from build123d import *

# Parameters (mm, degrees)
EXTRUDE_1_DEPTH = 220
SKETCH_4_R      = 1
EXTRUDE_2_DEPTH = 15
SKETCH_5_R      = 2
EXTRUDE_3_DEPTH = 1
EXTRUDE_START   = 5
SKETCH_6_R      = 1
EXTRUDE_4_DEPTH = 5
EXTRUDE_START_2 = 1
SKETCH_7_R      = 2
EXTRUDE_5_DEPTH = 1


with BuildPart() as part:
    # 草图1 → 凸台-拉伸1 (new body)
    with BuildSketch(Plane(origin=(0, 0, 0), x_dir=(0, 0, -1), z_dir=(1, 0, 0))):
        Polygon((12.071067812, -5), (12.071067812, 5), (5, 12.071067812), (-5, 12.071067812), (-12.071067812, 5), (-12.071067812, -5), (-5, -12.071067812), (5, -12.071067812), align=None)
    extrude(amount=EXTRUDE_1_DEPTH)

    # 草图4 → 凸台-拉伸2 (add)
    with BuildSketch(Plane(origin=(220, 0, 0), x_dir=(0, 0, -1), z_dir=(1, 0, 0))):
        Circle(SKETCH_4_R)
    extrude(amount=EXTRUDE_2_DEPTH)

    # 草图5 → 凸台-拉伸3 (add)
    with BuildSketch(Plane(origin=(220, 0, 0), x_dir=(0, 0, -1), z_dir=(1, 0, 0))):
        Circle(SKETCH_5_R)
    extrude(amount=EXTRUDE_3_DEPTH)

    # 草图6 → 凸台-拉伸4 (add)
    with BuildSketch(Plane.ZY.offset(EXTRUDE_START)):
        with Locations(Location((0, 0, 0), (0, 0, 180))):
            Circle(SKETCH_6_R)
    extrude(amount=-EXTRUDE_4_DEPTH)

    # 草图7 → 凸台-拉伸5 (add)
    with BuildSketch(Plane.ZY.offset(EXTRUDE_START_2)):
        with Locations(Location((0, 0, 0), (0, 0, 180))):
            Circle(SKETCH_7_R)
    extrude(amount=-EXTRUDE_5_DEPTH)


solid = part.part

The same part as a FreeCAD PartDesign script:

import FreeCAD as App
import Part
import Sketcher

V = App.Vector
Q = App.Units.Quantity

doc = App.newDocument("Part")
body = doc.addObject("PartDesign::Body", "Body")

# Sketch on YZ plane
sketch1 = doc.addObject("Sketcher::SketchObject", "Sketch")
body.addObject(sketch1)
sketch1.AttachmentSupport = (doc.YZ_Plane, [""])
sketch1.MapMode = "FlatFace"
sketch1.addGeometry([
    Part.LineSegment(V(-5, -12, 0), V(5, -12, 0)),  # 0
    Part.LineSegment(V(5, -12, 0), V(12, -5, 0)),  # 1
    Part.LineSegment(V(12, -5, 0), V(12, 5, 0)),  # 2
    Part.LineSegment(V(12, 5, 0), V(5, 12, 0)),  # 3
    Part.LineSegment(V(5, 12, 0), V(-5, 12, 0)),  # 4
    Part.LineSegment(V(-5, 12, 0), V(-12, 5, 0)),  # 5
    Part.LineSegment(V(-12, 5, 0), V(-12, -5, 0)),  # 6
    Part.LineSegment(V(-12, -5, 0), V(-5, -12, 0)),  # 7
], False)
sketch1.addConstraint([
    Sketcher.Constraint("Coincident", 0, 2, 1, 1),
    Sketcher.Constraint("Coincident", 1, 2, 2, 1),
    Sketcher.Constraint("Coincident", 2, 2, 3, 1),
    Sketcher.Constraint("Coincident", 3, 2, 4, 1),
    Sketcher.Constraint("Coincident", 4, 2, 5, 1),
    Sketcher.Constraint("Coincident", 5, 2, 6, 1),
    Sketcher.Constraint("Coincident", 6, 2, 7, 1),
    Sketcher.Constraint("Coincident", 7, 2, 0, 1),
    Sketcher.Constraint("Horizontal", 0),
    Sketcher.Constraint("Vertical", 2),
    Sketcher.Constraint("Horizontal", 4),
    Sketcher.Constraint("Vertical", 6),
    Sketcher.Constraint("Symmetric", 0, 2, 4, 2, -1, 1),
    Sketcher.Constraint("Symmetric", 1, 2, 5, 2, -1, 1),
    Sketcher.Constraint("Perpendicular", 1, 3),
    Sketcher.Constraint("Perpendicular", 5, 7),
    Sketcher.Constraint("Horizontal", 2, 2, 5, 2),
    Sketcher.Constraint("Horizontal", 1, 2, 6, 2),
    Sketcher.Constraint("Vertical", 0, 2, 3, 2),
    Sketcher.Constraint("Equal", 4, 2),
    Sketcher.Constraint("DistanceX", 0, 1, 0, 2, Q("10 mm")),
    Sketcher.Constraint("Distance", 1, Q("10 mm")),
])
pad1 = doc.addObject("PartDesign::Pad", "Pad")
body.addObject(pad1)
pad1.Profile = sketch1
pad1.Length = 220

# Sketch on YZ plane
sketch2 = doc.addObject("Sketcher::SketchObject", "Sketch001")
body.addObject(sketch2)
sketch2.AttachmentSupport = (doc.YZ_Plane, [""])
sketch2.MapMode = "FlatFace"
sketch2.AttachmentOffset = App.Placement(V(0, 0, 220), App.Rotation())
sketch2.addGeometry(Part.Circle(V(0, 0, 0), V(0, 0, 1), 1), False)
sketch2.addConstraint([
    Sketcher.Constraint("Coincident", 0, 3, -1, 1),
    Sketcher.Constraint("Diameter", 0, Q("2 mm")),
])
pad2 = doc.addObject("PartDesign::Pad", "Pad001")
body.addObject(pad2)
pad2.Profile = sketch2
pad2.Length = 15

# Sketch on YZ plane
sketch3 = doc.addObject("Sketcher::SketchObject", "Sketch002")
body.addObject(sketch3)
sketch3.AttachmentSupport = (doc.YZ_Plane, [""])
sketch3.MapMode = "FlatFace"
sketch3.AttachmentOffset = App.Placement(V(0, 0, 220), App.Rotation())
sketch3.addGeometry(Part.Circle(V(0, 0, 0), V(0, 0, 1), 2), False)
sketch3.addConstraint([
    Sketcher.Constraint("Coincident", 0, 3, -1, 1),
    Sketcher.Constraint("Diameter", 0, Q("4 mm")),
])
pad3 = doc.addObject("PartDesign::Pad", "Pad002")
body.addObject(pad3)
pad3.Profile = sketch3
pad3.Length = 1

# Sketch on YZ plane
sketch4 = doc.addObject("Sketcher::SketchObject", "Sketch003")
body.addObject(sketch4)
sketch4.AttachmentSupport = (doc.YZ_Plane, [""])
sketch4.MapMode = "FlatFace"
sketch4.AttachmentOffset = App.Placement(V(0, 0, -5), App.Rotation())
sketch4.addGeometry(Part.Circle(V(0, 0, 0), V(0, 0, 1), 1), False)
sketch4.addConstraint([
    Sketcher.Constraint("Coincident", 0, 3, -1, 1),
    Sketcher.Constraint("Diameter", 0, Q("2 mm")),
])
pad4 = doc.addObject("PartDesign::Pad", "Pad003")
body.addObject(pad4)
pad4.Profile = sketch4
pad4.Length = 5

# Sketch on YZ plane
sketch5 = doc.addObject("Sketcher::SketchObject", "Sketch004")
body.addObject(sketch5)
sketch5.AttachmentSupport = (doc.YZ_Plane, [""])
sketch5.MapMode = "FlatFace"
sketch5.AttachmentOffset = App.Placement(V(0, 0, -1), App.Rotation())
sketch5.addGeometry(Part.Circle(V(0, 0, 0), V(0, 0, 1), 2), False)
sketch5.addConstraint([
    Sketcher.Constraint("Coincident", 0, 3, -1, 1),
    Sketcher.Constraint("Diameter", 0, Q("4 mm")),
])
pad5 = doc.addObject("PartDesign::Pad", "Pad004")
body.addObject(pad5)
pad5.Profile = sketch5
pad5.Length = 1

doc.recompute()
